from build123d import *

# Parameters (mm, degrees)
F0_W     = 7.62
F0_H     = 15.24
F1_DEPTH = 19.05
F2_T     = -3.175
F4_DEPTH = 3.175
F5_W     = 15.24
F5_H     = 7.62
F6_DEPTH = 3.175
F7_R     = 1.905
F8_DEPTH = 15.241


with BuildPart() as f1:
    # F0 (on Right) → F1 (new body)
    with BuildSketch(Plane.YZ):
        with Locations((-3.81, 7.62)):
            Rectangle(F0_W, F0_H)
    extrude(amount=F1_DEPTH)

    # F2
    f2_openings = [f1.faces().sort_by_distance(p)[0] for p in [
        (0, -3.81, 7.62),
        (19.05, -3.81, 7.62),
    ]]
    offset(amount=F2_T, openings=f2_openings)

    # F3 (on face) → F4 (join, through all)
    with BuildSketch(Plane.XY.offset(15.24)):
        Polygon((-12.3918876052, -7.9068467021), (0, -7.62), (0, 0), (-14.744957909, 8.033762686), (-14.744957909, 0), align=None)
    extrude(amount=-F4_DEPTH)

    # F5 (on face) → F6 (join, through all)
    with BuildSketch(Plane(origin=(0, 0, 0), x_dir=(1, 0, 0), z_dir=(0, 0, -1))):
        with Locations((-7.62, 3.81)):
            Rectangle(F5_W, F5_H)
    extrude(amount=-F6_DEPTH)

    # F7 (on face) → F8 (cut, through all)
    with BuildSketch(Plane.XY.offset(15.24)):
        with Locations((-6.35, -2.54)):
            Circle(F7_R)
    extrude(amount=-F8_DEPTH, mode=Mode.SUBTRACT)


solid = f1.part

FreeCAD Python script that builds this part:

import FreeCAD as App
import Part
import Sketcher

V = App.Vector
Q = App.Units.Quantity


def faces_at(feature, points):
    """Names of the faces that lie closest to the given points."""
    faces = feature.Shape.Faces
    near = lambda p: min(range(len(faces)), key=lambda i: faces[i].distToShape(Part.Vertex(*p))[0])
    return sorted({f"Face{near(p) + 1}" for p in points})


def add_polygon(sketch, points):
    """Adds a closed chain of lines whose ends are joined by coincident constraints."""
    first, n = sketch.GeometryCount, len(points)
    for a, b in zip(points, points[1:] + points[:1]):
        sketch.addGeometry(Part.LineSegment(App.Vector(*a, 0), App.Vector(*b, 0)), False)
    for i in range(n):
        sketch.addConstraint(Sketcher.Constraint("Coincident", first + i, 2, first + (i + 1) % n, 1))

doc = App.newDocument("Part")
params = doc.addObject("Spreadsheet::Sheet", "Params")
for row, (alias, value) in enumerate([
    ("sketch1_width", "0.3 in"),
    ("sketch1_height", "0.6 in"),
    ("pad1_length", "0.75 in"),
    ("thickness_wall", "0.125 in"),
    ("sketch2_height", "0.3 in"),
    ("pad2_length", "0.125 in"),
    ("sketch3_width", "0.6 in"),
    ("sketch3_height", "0.3 in"),
    ("pad3_length", "0.125 in"),
    ("sketch4_diameter", "0.15 in"),
], start=1):
    params.set(f"A{row}", alias)
    params.set(f"B{row}", "=" + value)
    params.setAlias(f"B{row}", alias)

body = doc.addObject("PartDesign::Body", "Body")

sketch1 = body.newObject("Sketcher::SketchObject", "Sketch")
sketch1.AttachmentSupport = (doc.getObject("YZ_Plane"), [""])
sketch1.MapMode = "FlatFace"
add_polygon(sketch1, [(-7.62, 15.24), (-7.62, 0), (0, 0), (0, 15.24)])
sketch1.addConstraint(Sketcher.Constraint("Vertical", 0))
sketch1.addConstraint(Sketcher.Constraint("Horizontal", 1))
sketch1.addConstraint(Sketcher.Constraint("Vertical", 2))
sketch1.addConstraint(Sketcher.Constraint("Horizontal", 3))
sketch1.addConstraint(Sketcher.Constraint("Coincident", 1, 2, -1, 1))
sketch1.addConstraint(Sketcher.Constraint("DistanceX", 1, 1, 1, 2, Q("0.3 in")))
sketch1.addConstraint(Sketcher.Constraint("DistanceY", 0, 2, 0, 1, Q("0.6 in")))
sketch1.setExpression("Constraints[9]", "Params.sketch1_width")
sketch1.setExpression("Constraints[10]", "Params.sketch1_height")
pad1 = body.newObject("PartDesign::Pad", "Pad")
pad1.Profile = sketch1
pad1.setExpression("Length", "Params.pad1_length")
doc.recompute()

thickness = body.newObject("PartDesign::Thickness", "Thickness")
thickness.Base = (pad1, faces_at(pad1, [(0, -3.81, 7.62), (19.05, -3.81, 7.62)]))
thickness.setExpression("Value", "Params.thickness_wall")
thickness.Reversed = True
thickness.Join = "Arc"

sketch2 = body.newObject("Sketcher::SketchObject", "Sketch001")
sketch2.AttachmentSupport = (doc.getObject("XY_Plane"), [""])
sketch2.MapMode = "FlatFace"
sketch2.AttachmentOffset = App.Placement(V(0, 0, 0.6 * 25.4), App.Rotation())
add_polygon(sketch2, [(-12.391888, -7.906847), (0, -7.62), (0, 0), (-14.744958, 8.033763), (-14.744958, 0)])
sketch2.addConstraint(Sketcher.Constraint("Vertical", 1))
sketch2.addConstraint(Sketcher.Constraint("Vertical", 3))
sketch2.addConstraint(Sketcher.Constraint("Coincident", 1, 2, -1, 1))
sketch2.addConstraint(Sketcher.Constraint("PointOnObject", 3, 2, -1))
sketch2.addConstraint(Sketcher.Constraint("DistanceY", 1, 1, 1, 2, Q("0.3 in")))
sketch2.addConstraint(Sketcher.Constraint("Distance", 2, 16.791519))
sketch2.addConstraint(Sketcher.Constraint("DistanceY", 3, 2, 3, 1, 8.033763))
sketch2.addConstraint(Sketcher.Constraint("DistanceX", 3, 2, 4, 2, 2.35307))
sketch2.addConstraint(Sketcher.Constraint("DistanceY", 4, 2, 2, 2, 15.940609))
sketch2.setExpression("Constraints[9]", "Params.sketch2_height")
pad2 = body.newObject("PartDesign::Pad", "Pad001")
pad2.Profile = sketch2
pad2.setExpression("Length", "Params.pad2_length")
pad2.Reversed = True

sketch3 = body.newObject("Sketcher::SketchObject", "Sketch002")
sketch3.AttachmentSupport = (doc.getObject("XY_Plane"), [""])
sketch3.MapMode = "FlatFace"
add_polygon(sketch3, [(-15.24, -7.62), (-15.24, 0), (0, 0), (0, -7.62)])
sketch3.addConstraint(Sketcher.Constraint("Vertical", 0))
sketch3.addConstraint(Sketcher.Constraint("Horizontal", 1))
sketch3.addConstraint(Sketcher.Constraint("Vertical", 2))
sketch3.addConstraint(Sketcher.Constraint("Horizontal", 3))
sketch3.addConstraint(Sketcher.Constraint("Coincident", 1, 2, -1, 1))
sketch3.addConstraint(Sketcher.Constraint("DistanceX", 1, 1, 1, 2, Q("0.6 in")))
sketch3.addConstraint(Sketcher.Constraint("DistanceY", 0, 1, 0, 2, Q("0.3 in")))
sketch3.setExpression("Constraints[9]", "Params.sketch3_width")
sketch3.setExpression("Constraints[10]", "Params.sketch3_height")
pad3 = body.newObject("PartDesign::Pad", "Pad002")
pad3.Profile = sketch3
pad3.setExpression("Length", "Params.pad3_length")

sketch4 = body.newObject("Sketcher::SketchObject", "Sketch003")
sketch4.AttachmentSupport = (doc.getObject("XY_Plane"), [""])
sketch4.MapMode = "FlatFace"
sketch4.AttachmentOffset = App.Placement(V(0, 0, 0.6 * 25.4), App.Rotation())
sketch4.addGeometry(Part.Circle(V(-6.35, -2.54, 0), V(0, 0, 1), 1.905), False)
sketch4.addConstraint(Sketcher.Constraint("Diameter", 0, Q("0.15 in")))
sketch4.addConstraint(Sketcher.Constraint("DistanceY", 0, 3, -1, 1, Q("0.1 in")))
sketch4.addConstraint(Sketcher.Constraint("DistanceX", 0, 3, -1, 1, Q("0.25 in")))
sketch4.setExpression("Constraints[0]", "Params.sketch4_diameter")
pocket1 = body.newObject("PartDesign::Pocket", "Pocket")
pocket1.Profile = sketch4
pocket1.Type = "ThroughAll"

doc.recompute()
